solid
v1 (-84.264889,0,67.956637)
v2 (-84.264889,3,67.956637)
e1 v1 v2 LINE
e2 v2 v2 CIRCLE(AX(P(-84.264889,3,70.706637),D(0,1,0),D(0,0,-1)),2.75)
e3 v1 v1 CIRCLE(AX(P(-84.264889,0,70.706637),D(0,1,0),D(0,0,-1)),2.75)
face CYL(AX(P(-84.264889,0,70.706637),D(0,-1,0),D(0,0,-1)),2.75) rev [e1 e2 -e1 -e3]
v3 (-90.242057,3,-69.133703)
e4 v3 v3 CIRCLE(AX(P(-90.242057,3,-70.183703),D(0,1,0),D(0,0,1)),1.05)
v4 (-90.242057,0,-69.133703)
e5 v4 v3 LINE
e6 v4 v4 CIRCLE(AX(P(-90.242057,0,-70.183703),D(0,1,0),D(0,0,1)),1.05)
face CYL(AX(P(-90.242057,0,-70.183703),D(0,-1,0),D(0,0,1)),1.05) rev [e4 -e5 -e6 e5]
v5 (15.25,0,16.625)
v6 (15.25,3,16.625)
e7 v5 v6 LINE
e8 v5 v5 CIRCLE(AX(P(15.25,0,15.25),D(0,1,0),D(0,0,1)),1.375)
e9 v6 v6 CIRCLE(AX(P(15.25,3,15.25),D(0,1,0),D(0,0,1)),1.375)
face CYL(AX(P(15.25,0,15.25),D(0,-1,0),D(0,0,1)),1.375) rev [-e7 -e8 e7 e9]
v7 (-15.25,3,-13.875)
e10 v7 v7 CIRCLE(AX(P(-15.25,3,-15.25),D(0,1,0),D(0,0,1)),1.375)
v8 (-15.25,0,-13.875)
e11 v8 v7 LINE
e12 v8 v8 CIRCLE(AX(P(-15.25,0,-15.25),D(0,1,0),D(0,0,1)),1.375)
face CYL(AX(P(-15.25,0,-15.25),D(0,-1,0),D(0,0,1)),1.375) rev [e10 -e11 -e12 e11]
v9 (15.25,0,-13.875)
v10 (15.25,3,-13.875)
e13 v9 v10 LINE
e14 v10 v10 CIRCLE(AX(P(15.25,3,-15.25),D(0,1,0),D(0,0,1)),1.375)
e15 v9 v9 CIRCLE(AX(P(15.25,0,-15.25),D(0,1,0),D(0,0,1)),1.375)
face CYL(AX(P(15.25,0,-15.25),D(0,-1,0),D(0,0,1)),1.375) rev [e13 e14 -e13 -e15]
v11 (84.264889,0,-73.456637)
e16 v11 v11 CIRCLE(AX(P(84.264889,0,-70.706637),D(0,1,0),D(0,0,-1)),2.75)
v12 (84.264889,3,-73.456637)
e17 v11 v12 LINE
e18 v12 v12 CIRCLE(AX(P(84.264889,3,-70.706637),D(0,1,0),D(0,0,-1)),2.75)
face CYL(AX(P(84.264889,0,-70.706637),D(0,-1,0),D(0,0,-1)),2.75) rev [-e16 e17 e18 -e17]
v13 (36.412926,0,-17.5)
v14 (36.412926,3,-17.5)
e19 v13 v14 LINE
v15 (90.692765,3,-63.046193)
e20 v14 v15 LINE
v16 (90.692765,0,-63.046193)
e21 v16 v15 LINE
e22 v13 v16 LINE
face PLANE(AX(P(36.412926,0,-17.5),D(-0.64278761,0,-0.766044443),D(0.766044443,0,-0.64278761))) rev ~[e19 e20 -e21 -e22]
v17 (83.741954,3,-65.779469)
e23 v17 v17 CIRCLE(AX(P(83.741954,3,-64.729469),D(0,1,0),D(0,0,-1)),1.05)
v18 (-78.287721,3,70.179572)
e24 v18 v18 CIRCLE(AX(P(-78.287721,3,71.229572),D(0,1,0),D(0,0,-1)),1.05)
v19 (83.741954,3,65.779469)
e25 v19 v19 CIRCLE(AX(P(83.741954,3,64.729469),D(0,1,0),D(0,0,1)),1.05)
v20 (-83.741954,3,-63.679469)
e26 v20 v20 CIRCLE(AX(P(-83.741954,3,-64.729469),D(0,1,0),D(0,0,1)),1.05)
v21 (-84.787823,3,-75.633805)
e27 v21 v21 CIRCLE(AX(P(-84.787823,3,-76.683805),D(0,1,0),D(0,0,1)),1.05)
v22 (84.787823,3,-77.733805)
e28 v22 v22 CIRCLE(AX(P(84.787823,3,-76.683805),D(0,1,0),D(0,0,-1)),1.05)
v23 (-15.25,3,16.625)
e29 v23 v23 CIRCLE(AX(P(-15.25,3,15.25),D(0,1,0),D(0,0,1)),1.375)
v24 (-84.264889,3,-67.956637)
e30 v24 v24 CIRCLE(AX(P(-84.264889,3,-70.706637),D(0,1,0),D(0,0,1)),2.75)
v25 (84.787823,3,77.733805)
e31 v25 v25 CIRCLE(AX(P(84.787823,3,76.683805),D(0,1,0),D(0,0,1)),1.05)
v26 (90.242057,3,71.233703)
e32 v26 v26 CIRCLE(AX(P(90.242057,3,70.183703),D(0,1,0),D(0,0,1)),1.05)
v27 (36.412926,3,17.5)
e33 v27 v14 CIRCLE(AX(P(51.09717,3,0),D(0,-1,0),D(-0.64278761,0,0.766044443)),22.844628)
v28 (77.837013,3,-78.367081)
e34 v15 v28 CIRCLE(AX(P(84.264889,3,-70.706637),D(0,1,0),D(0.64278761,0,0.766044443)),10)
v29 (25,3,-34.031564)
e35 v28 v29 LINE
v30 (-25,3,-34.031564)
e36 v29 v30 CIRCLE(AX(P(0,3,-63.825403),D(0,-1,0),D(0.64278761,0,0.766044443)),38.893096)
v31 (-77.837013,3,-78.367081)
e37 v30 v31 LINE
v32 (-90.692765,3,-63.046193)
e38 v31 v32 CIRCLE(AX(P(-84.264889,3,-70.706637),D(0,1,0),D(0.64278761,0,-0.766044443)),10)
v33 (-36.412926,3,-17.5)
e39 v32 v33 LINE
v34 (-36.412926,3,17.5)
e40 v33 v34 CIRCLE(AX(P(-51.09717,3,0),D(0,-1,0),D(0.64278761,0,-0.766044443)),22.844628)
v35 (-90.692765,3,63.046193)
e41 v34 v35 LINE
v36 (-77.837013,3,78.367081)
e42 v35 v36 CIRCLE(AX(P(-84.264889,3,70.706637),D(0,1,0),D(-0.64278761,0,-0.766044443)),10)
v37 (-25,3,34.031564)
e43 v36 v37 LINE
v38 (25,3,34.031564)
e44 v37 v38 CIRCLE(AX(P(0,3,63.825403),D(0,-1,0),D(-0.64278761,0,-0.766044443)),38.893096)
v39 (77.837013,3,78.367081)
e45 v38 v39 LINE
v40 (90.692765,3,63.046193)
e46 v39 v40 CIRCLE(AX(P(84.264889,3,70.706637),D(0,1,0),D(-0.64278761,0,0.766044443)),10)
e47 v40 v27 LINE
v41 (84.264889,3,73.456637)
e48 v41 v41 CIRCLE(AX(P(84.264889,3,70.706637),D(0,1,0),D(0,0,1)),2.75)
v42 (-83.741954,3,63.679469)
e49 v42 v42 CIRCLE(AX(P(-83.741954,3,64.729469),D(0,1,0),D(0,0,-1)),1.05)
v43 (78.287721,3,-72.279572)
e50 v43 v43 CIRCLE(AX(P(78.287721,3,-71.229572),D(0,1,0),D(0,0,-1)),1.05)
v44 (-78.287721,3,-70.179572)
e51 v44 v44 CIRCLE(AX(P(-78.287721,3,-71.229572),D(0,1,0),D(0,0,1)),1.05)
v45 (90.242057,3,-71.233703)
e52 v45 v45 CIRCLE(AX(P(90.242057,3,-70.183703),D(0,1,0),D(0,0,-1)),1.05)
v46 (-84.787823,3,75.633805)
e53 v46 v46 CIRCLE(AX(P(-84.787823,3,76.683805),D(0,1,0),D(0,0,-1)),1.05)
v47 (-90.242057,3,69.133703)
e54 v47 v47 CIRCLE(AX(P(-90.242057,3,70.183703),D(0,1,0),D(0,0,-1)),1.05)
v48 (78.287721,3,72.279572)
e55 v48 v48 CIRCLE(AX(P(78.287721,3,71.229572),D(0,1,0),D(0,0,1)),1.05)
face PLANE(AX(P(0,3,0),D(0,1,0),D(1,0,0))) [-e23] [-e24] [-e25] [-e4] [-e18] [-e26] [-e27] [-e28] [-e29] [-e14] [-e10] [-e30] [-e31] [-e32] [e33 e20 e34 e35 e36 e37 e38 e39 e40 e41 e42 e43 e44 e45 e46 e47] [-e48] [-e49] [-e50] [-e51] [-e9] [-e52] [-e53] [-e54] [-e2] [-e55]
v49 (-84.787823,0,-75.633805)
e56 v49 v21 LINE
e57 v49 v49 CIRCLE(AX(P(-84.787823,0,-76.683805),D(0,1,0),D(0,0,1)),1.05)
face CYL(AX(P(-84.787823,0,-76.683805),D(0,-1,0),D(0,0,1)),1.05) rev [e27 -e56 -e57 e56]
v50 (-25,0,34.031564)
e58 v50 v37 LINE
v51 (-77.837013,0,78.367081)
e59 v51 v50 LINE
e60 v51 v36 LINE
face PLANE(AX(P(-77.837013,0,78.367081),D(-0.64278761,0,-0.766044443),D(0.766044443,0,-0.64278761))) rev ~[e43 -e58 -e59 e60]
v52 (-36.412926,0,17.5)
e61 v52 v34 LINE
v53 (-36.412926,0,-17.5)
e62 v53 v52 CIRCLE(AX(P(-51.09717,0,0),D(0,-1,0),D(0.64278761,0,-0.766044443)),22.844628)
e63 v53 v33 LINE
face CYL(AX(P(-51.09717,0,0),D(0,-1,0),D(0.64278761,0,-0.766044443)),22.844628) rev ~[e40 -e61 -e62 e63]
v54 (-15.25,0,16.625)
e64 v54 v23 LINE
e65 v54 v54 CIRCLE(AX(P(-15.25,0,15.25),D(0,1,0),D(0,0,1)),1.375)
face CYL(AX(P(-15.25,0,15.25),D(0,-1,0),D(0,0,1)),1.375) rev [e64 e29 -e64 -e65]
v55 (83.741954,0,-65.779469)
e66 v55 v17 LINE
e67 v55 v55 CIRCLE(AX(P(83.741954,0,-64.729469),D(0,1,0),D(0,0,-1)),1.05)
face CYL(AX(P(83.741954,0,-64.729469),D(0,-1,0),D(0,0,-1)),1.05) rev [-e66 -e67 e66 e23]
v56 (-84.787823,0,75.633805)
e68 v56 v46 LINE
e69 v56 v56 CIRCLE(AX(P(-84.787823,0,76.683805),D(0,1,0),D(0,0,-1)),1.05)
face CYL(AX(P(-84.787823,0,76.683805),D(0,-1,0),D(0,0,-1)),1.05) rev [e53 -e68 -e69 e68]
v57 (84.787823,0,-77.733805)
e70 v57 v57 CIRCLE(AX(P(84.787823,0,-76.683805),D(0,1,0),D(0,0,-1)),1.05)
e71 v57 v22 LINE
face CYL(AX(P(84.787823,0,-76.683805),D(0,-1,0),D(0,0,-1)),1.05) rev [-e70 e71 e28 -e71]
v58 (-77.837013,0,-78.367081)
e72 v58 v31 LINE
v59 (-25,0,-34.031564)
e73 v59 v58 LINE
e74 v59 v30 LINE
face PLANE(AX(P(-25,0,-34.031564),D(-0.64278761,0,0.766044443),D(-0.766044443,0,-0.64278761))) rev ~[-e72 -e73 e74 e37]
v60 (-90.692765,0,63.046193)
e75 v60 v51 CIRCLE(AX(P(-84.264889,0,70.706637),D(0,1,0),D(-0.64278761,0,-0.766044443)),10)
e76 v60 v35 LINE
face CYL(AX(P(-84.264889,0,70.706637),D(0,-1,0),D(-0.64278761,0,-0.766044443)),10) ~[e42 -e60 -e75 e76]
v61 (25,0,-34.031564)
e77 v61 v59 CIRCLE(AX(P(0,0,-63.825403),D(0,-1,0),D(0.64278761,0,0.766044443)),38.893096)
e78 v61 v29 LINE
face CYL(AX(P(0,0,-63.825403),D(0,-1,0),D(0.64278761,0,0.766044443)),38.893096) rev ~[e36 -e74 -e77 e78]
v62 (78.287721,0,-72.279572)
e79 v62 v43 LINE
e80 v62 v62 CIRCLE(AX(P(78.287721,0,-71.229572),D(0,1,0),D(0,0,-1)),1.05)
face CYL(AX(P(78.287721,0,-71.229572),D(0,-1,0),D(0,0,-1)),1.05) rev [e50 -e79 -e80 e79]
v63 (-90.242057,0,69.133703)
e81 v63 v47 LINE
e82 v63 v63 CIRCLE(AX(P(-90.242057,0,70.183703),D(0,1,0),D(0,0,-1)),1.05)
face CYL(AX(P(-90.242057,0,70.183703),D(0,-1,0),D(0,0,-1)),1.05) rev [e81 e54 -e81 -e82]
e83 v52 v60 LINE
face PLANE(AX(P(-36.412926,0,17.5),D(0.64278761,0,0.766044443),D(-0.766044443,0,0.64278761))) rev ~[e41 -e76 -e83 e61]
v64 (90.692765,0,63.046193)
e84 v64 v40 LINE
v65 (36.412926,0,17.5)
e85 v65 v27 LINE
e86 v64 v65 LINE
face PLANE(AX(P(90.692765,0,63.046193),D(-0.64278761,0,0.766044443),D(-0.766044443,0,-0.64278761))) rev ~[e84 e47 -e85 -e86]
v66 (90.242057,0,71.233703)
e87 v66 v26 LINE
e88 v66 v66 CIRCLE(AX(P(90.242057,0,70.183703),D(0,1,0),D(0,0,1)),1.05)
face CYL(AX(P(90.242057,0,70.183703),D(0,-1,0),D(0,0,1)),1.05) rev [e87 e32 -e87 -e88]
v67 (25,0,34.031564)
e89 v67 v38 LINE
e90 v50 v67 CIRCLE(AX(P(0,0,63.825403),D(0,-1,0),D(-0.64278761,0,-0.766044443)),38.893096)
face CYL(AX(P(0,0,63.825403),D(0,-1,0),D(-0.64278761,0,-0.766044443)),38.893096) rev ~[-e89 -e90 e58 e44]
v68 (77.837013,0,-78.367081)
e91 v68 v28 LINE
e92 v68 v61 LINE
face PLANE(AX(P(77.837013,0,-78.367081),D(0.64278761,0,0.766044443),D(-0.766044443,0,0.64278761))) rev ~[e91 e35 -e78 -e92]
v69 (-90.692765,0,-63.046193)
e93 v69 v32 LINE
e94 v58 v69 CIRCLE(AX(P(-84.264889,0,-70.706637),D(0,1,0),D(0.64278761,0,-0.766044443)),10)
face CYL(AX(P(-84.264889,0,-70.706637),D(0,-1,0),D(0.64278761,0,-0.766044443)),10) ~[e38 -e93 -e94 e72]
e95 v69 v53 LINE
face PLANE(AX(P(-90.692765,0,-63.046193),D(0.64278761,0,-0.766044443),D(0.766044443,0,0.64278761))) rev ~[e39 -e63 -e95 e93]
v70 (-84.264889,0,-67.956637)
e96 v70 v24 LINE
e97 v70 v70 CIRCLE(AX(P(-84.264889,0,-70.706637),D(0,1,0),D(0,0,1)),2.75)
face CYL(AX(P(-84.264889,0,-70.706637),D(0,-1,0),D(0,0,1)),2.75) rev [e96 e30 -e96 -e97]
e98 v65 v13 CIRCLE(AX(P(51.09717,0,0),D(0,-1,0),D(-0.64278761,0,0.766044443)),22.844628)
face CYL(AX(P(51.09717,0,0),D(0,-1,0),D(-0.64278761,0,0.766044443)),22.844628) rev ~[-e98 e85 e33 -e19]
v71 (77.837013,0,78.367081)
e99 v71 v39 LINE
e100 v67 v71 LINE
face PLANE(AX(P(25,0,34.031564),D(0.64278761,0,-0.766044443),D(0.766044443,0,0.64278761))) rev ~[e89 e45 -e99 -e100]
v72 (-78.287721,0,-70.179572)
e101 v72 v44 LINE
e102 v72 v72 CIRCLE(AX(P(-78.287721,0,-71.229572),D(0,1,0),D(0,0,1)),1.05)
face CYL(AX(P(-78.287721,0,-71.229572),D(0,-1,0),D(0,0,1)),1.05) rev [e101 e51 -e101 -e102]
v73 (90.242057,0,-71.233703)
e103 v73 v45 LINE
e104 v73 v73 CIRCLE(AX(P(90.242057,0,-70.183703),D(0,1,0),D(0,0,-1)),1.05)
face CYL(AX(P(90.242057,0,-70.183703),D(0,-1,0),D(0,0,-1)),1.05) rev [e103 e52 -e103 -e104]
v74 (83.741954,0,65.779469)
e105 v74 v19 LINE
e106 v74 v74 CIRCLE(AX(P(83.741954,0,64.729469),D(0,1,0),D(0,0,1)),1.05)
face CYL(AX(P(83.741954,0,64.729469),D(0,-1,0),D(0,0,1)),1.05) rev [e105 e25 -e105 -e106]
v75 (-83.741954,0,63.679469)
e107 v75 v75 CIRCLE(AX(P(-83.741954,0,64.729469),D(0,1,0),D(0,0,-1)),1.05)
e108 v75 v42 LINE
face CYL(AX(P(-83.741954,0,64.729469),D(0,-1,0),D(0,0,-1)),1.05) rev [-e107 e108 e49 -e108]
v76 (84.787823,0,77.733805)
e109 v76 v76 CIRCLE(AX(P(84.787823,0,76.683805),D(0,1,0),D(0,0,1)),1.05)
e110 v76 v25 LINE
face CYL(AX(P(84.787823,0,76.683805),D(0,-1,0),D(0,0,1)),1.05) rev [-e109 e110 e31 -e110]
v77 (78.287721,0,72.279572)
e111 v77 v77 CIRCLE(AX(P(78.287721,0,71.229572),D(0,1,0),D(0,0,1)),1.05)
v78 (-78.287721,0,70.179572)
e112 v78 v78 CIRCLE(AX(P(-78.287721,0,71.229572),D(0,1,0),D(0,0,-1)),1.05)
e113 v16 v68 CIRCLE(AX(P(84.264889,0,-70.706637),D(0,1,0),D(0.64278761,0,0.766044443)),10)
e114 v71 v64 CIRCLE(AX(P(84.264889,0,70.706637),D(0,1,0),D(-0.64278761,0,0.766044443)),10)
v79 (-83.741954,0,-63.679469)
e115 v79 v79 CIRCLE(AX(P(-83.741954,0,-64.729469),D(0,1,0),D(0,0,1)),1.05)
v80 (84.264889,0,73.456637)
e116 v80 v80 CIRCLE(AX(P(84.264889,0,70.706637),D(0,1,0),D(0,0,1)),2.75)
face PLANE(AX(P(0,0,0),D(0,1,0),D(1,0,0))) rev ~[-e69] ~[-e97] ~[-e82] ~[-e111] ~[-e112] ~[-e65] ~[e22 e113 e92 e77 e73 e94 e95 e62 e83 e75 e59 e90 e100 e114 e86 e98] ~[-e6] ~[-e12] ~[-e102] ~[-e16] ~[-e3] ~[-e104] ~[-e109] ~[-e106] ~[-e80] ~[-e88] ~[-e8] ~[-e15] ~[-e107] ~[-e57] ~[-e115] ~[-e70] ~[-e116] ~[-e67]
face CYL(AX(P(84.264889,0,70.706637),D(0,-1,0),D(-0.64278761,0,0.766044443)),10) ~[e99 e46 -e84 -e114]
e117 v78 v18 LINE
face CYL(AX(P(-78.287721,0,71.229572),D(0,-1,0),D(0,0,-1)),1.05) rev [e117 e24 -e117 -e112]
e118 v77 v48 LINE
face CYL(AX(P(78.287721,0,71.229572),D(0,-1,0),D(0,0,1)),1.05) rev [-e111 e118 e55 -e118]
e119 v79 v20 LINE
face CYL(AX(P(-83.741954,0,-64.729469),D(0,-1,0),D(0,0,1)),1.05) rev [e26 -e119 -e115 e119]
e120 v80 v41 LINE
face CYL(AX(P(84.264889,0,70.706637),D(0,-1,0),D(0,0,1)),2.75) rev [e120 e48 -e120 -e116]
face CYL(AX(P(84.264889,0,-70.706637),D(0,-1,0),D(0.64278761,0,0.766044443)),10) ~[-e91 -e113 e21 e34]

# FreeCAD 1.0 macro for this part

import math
import FreeCAD as App
import Part
import Sketcher

V = App.Vector
Q = App.Units.Quantity

doc = App.newDocument("Part")
body = doc.addObject("PartDesign::Body", "Body")

sketch1 = doc.addObject("Sketcher::SketchObject", "Sketch")
body.addObject(sketch1)
sketch1.AttachmentSupport = (doc.XZ_Plane, [""])
sketch1.MapMode = "FlatFace"
sketch1.addGeometry([
    Part.LineSegment(V(-90.7, -63, 0), V(-36.4, -17.5, 0)),
    Part.ArcOfCircle(Part.Circle(V(-51.1, 0, 0), V(0, 0, 1), 22.8), math.radians(-50), math.radians(50)),
    Part.LineSegment(V(-36.4, 17.5, 0), V(-90.7, 63, 0)),
    Part.ArcOfCircle(Part.Circle(V(-84.3, 70.7, 0), V(0, 0, 1), 10), math.radians(50), math.radians(230)),
    Part.LineSegment(V(-77.8, 78.4, 0), V(-25, 34, 0)),
    Part.ArcOfCircle(Part.Circle(V(0, 63.8, 0), V(0, 0, 1), 38.9), math.radians(-130), math.radians(-50)),
    Part.LineSegment(V(25, 34, 0), V(77.8, 78.4, 0)),
    Part.ArcOfCircle(Part.Circle(V(84.3, 70.7, 0), V(0, 0, 1), 10), math.radians(-50), math.radians(130)),
    Part.LineSegment(V(90.7, 63, 0), V(36.4, 17.5, 0)),
    Part.ArcOfCircle(Part.Circle(V(51.1, 0, 0), V(0, 0, 1), 22.8), math.radians(130), math.radians(230)),
    Part.LineSegment(V(36.4, -17.5, 0), V(90.7, -63, 0)),
    Part.ArcOfCircle(Part.Circle(V(84.3, -70.7, 0), V(0, 0, 1), 10), math.radians(-130), math.radians(50)),
    Part.LineSegment(V(77.8, -78.4, 0), V(25, -34, 0)),
    Part.ArcOfCircle(Part.Circle(V(0, -63.8, 0), V(0, 0, 1), 38.9), math.radians(50), math.radians(130)),
    Part.LineSegment(V(-25, -34, 0), V(-77.8, -78.4, 0)),
    Part.ArcOfCircle(Part.Circle(V(-84.3, -70.7, 0), V(0, 0, 1), 10), math.radians(130), math.radians(310)),
    Part.Circle(V(-84.8, 76.7, 0), V(0, 0, 1), 1.1),
    Part.Circle(V(-90.2, 70.2, 0), V(0, 0, 1), 1.1),
    Part.Circle(V(-84.3, 70.7, 0), V(0, 0, 1), 2.8),
    Part.Circle(V(-78.3, 71.2, 0), V(0, 0, 1), 1.1),
    Part.Circle(V(-83.7, 64.7, 0), V(0, 0, 1), 1.1),
    Part.Circle(V(78.3, 71.2, 0), V(0, 0, 1), 1.1),
    Part.Circle(V(84.8, 76.7, 0), V(0, 0, 1), 1.1),
    Part.Circle(V(84.3, 70.7, 0), V(0, 0, 1), 2.8),
    Part.Circle(V(90.2, 70.2, 0), V(0, 0, 1), 1.1),
    Part.Circle(V(83.7, 64.7, 0), V(0, 0, 1), 1.1),
    Part.Circle(V(-83.7, -64.7, 0), V(0, 0, 1), 1.1),
    Part.Circle(V(-90.2, -70.2, 0), V(0, 0, 1), 1.1),
    Part.Circle(V(-84.3, -70.7, 0), V(0, 0, 1), 2.8),
    Part.Circle(V(-84.8, -76.7, 0), V(0, 0, 1), 1.1),
    Part.Circle(V(-78.3, -71.2, 0), V(0, 0, 1), 1.1),
    Part.Circle(V(83.7, -64.7, 0), V(0, 0, 1), 1.1),
    Part.Circle(V(78.3, -71.2, 0), V(0, 0, 1), 1.1),
    Part.Circle(V(84.3, -70.7, 0), V(0, 0, 1), 2.8),
    Part.Circle(V(90.2, -70.2, 0), V(0, 0, 1), 1.1),
    Part.Circle(V(84.8, -76.7, 0), V(0, 0, 1), 1.1),
], False)
sketch1.addConstraint([
    Sketcher.Constraint("Tangent", 0, 2, 1, 1),
    Sketcher.Constraint("Tangent", 1, 2, 2, 1),
    Sketcher.Constraint("Tangent", 2, 2, 3, 2),
    Sketcher.Constraint("Tangent", 3, 1, 4, 1),
    Sketcher.Constraint("Tangent", 4, 2, 5, 1),
    Sketcher.Constraint("Tangent", 5, 2, 6, 1),
    Sketcher.Constraint("Tangent", 6, 2, 7, 2),
    Sketcher.Constraint("Tangent", 7, 1, 8, 1),
    Sketcher.Constraint("Tangent", 8, 2, 9, 1),
    Sketcher.Constraint("Tangent", 9, 2, 10, 1),
    Sketcher.Constraint("Tangent", 10, 2, 11, 2),
    Sketcher.Constraint("Tangent", 11, 1, 12, 1),
    Sketcher.Constraint("Tangent", 12, 2, 13, 1),
    Sketcher.Constraint("Tangent", 13, 2, 14, 1),
    Sketcher.Constraint("Tangent", 14, 2, 15, 2),
    Sketcher.Constraint("Tangent", 15, 1, 0, 1),
    Sketcher.Constraint("Coincident", 18, 3, 3, 3),
    Sketcher.Constraint("Coincident", 23, 3, 7, 3),
    Sketcher.Constraint("Coincident", 28, 3, 15, 3),
    Sketcher.Constraint("Coincident", 33, 3, 11, 3),
    Sketcher.Constraint("Equal", 3, 7),
    Sketcher.Constraint("Equal", 1, 9),
    Sketcher.Constraint("Equal", 7, 11),
    Sketcher.Constraint("Equal", 5, 13),
    Sketcher.Constraint("Equal", 11, 15),
    Sketcher.Constraint("Equal", 16, 17),
    Sketcher.Constraint("Equal", 17, 19),
    Sketcher.Constraint("Equal", 19, 20),
    Sketcher.Constraint("Equal", 20, 21),
    Sketcher.Constraint("Equal", 21, 22),
    Sketcher.Constraint("Equal", 18, 23),
    Sketcher.Constraint("Equal", 22, 24),
    Sketcher.Constraint("Equal", 24, 25),
    Sketcher.Constraint("Equal", 25, 26),
    Sketcher.Constraint("Equal", 26, 27),
    Sketcher.Constraint("Equal", 23, 28),
    Sketcher.Constraint("Equal", 27, 29),
    Sketcher.Constraint("Equal", 29, 30),
    Sketcher.Constraint("Equal", 30, 31),
    Sketcher.Constraint("Equal", 31, 32),
    Sketcher.Constraint("Equal", 28, 33),
    Sketcher.Constraint("Equal", 32, 34),
    Sketcher.Constraint("Equal", 34, 35),
    Sketcher.Constraint("Symmetric", 1, 3, 9, 3, -1, 1),
    Sketcher.Constraint("Symmetric", 3, 3, 11, 3, -1, 1),
    Sketcher.Constraint("Symmetric", 5, 3, 13, 3, -1, 1),
    Sketcher.Constraint("Symmetric", 7, 3, 15, 3, -1, 1),
    Sketcher.Constraint("Symmetric", 25, 3, 26, 3, -1, 1),
    Sketcher.Constraint("Symmetric", 24, 3, 27, 3, -1, 1),
    Sketcher.Constraint("Symmetric", 22, 3, 29, 3, -1, 1),
    Sketcher.Constraint("Symmetric", 21, 3, 30, 3, -1, 1),
    Sketcher.Constraint("Symmetric", 20, 3, 31, 3, -1, 1),
    Sketcher.Constraint("Symmetric", 19, 3, 32, 3, -1, 1),
    Sketcher.Constraint("Symmetric", 17, 3, 34, 3, -1, 1),
    Sketcher.Constraint("Symmetric", 16, 3, 35, 3, -1, 1),
    Sketcher.Constraint("Symmetric", 3, 3, 7, 3, -2),
    Sketcher.Constraint("Symmetric", 19, 3, 21, 3, -2),
    Sketcher.Constraint("Symmetric", 16, 3, 22, 3, -2),
    Sketcher.Constraint("Symmetric", 17, 3, 24, 3, -2),
    Sketcher.Constraint("Symmetric", 20, 3, 25, 3, -2),
    Sketcher.Constraint("PointOnObject", 1, 3, -1),
    Sketcher.Constraint("PointOnObject", 5, 3, -2),
    Sketcher.Constraint("Parallel", 2, 4),
    Sketcher.Constraint("Radius", 3, Q("10 mm")),
    Sketcher.Constraint("Diameter", 16, Q("2.1 mm")),
    Sketcher.Constraint("Diameter", 18, Q("5.5 mm")),
    Sketcher.Constraint("Angle", 0, Q("40 deg")),
    Sketcher.Constraint("DistanceX", 4, 2, -1, 1, Q("25 mm")),
    Sketcher.Constraint("DistanceY", 0, 2, 1, 2, Q("35 mm")),
    Sketcher.Constraint("DistanceY", 5, 3, 16, 3, Q("12.858402 mm")),
    Sketcher.Constraint("DistanceY", 5, 3, 17, 3, Q("6.358299 mm")),
    Sketcher.Constraint("Distance", 4, Q("68.973821 mm")),
    Sketcher.Constraint("DistanceX", 1, 3, -1, 1, Q("51.09717 mm")),
    Sketcher.Constraint("DistanceX", 19, 3, -1, 1, Q("78.287721 mm")),
    Sketcher.Constraint("DistanceY", -1, 1, 19, 3, Q("71.229572 mm")),
    Sketcher.Constraint("DistanceY", -1, 1, 20, 3, Q("64.729469 mm")),
    Sketcher.Constraint("DistanceX", 17, 3, 3, 3, Q("5.977168 mm")),
    Sketcher.Constraint("DistanceX", 16, 3, 20, 3, Q("1.045869 mm")),
    Sketcher.Constraint("DistanceX", 26, 3, 0, 2, Q("47.329028 mm")),
])
pad1 = doc.addObject("PartDesign::Pad", "Pad")
body.addObject(pad1)
pad1.Profile = sketch1
pad1.Length = 3
pad1.Reversed = True

sketch2 = doc.addObject("Sketcher::SketchObject", "Sketch001")
body.addObject(sketch2)
sketch2.AttachmentSupport = (doc.XZ_Plane, [""])
sketch2.MapMode = "FlatFace"
sketch2.addGeometry([
    Part.Circle(V(-15.2, -15.2, 0), V(0, 0, 1), 1.4),
    Part.Circle(V(15.2, 15.2, 0), V(0, 0, 1), 1.4),
    Part.Circle(V(-15.2, 15.2, 0), V(0, 0, 1), 1.4),
    Part.Circle(V(15.2, -15.2, 0), V(0, 0, 1), 1.4),
], False)
sketch2.addConstraint([
    Sketcher.Constraint("Equal", 0, 1),
    Sketcher.Constraint("Equal", 1, 2),
    Sketcher.Constraint("Equal", 2, 3),
    Sketcher.Constraint("Symmetric", 0, 3, 1, 3, -1, 1),
    Sketcher.Constraint("Symmetric", 2, 3, 3, 3, -1, 1),
    Sketcher.Constraint("Symmetric", 1, 3, 2, 3, -2),
    Sketcher.Constraint("Diameter", 0, Q("2.75 mm")),
    Sketcher.Constraint("DistanceX", 0, 3, 1, 3, Q("30.5 mm")),
    Sketcher.Constraint("DistanceY", 0, 3, 1, 3, Q("30.5 mm")),
])
pocket1 = doc.addObject("PartDesign::Pocket", "Pocket")
body.addObject(pocket1)
pocket1.Profile = sketch2
pocket1.Length = 3

doc.recompute()
